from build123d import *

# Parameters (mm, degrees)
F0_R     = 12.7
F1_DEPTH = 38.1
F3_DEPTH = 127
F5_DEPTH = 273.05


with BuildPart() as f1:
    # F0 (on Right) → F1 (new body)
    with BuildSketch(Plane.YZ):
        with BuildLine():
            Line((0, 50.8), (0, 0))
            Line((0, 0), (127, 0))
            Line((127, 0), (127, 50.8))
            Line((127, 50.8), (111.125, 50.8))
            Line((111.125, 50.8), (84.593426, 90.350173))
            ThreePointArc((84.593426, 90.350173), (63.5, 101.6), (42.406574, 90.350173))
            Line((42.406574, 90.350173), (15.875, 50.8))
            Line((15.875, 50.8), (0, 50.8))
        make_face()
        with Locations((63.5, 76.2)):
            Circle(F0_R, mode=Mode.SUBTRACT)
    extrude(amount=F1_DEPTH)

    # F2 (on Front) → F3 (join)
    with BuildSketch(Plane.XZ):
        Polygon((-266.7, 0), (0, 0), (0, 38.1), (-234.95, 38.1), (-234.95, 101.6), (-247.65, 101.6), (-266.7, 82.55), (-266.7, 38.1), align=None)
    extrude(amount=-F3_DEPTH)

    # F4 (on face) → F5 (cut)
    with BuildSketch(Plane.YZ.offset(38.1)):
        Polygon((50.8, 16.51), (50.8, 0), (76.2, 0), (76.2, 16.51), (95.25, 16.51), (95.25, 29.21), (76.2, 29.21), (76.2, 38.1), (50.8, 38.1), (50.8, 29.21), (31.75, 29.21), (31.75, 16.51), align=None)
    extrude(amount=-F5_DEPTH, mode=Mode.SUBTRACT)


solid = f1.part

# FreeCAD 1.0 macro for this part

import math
import FreeCAD as App
import Part
import Sketcher
Q = App.Units.Quantity


def add_polygon(sketch, points):
    """Adds a closed chain of lines whose ends are joined by coincident constraints."""
    first, n = sketch.GeometryCount, len(points)
    for a, b in zip(points, points[1:] + points[:1]):
        sketch.addGeometry(Part.LineSegment(App.Vector(*a, 0), App.Vector(*b, 0)), False)
    for i in range(n):
        sketch.addConstraint(Sketcher.Constraint("Coincident", first + i, 2, first + (i + 1) % n, 1))

doc = App.newDocument("Part")
body = doc.addObject("PartDesign::Body", "Body")

sketch1 = body.newObject("Sketcher::SketchObject", "Sketch")
sketch1.AttachmentSupport = (doc.getObject("YZ_Plane"), [""])
sketch1.MapMode = "FlatFace"
sketch1.addGeometry([
    Part.LineSegment(App.Vector(0, 51, 0), App.Vector(0, 0, 0)),
    Part.LineSegment(App.Vector(0, 0, 0), App.Vector(127, 0, 0)),
    Part.LineSegment(App.Vector(127, 0, 0), App.Vector(127, 51, 0)),
    Part.LineSegment(App.Vector(127, 51, 0), App.Vector(111, 51, 0)),
    Part.LineSegment(App.Vector(111, 51, 0), App.Vector(85, 90, 0)),
    Part.ArcOfCircle(Part.Circle(App.Vector(64, 76, 0), App.Vector(0, 0, 1), 25), math.radians(34), math.radians(146)),
    Part.LineSegment(App.Vector(42, 90, 0), App.Vector(16, 51, 0)),
    Part.LineSegment(App.Vector(16, 51, 0), App.Vector(0, 51, 0)),
    Part.Circle(App.Vector(64, 76, 0), App.Vector(0, 0, 1), 13),
], False)
sketch1.addConstraint([
    Sketcher.Constraint("Coincident", 0, 2, 1, 1),
    Sketcher.Constraint("Coincident", 1, 2, 2, 1),
    Sketcher.Constraint("Coincident", 2, 2, 3, 1),
    Sketcher.Constraint("Coincident", 3, 2, 4, 1),
    Sketcher.Constraint("Tangent", 4, 2, 5, 1),
    Sketcher.Constraint("Tangent", 5, 2, 6, 1),
    Sketcher.Constraint("Coincident", 6, 2, 7, 1),
    Sketcher.Constraint("Coincident", 7, 2, 0, 1),
    Sketcher.Constraint("Vertical", 0),
    Sketcher.Constraint("Horizontal", 1),
    Sketcher.Constraint("Vertical", 2),
    Sketcher.Constraint("Horizontal", 3),
    Sketcher.Constraint("Horizontal", 7),
    Sketcher.Constraint("Coincident", 0, 2, -1, 1),
    Sketcher.Constraint("Coincident", 8, 3, 5, 3),
    Sketcher.Constraint("Horizontal", 4, 2, 5, 2),
    Sketcher.Constraint("Horizontal", 3, 2, 6, 2),
    Sketcher.Constraint("Equal", 3, 7),
    Sketcher.Constraint("Diameter", 8, Q("1 in")),
    Sketcher.Constraint("Radius", 5, Q("1 in")),
    Sketcher.Constraint("DistanceX", 1, 1, 1, 2, Q("5 in")),
    Sketcher.Constraint("DistanceY", 0, 2, 0, 1, Q("2 in")),
    Sketcher.Constraint("DistanceY", -1, 1, 5, 3, Q("3 in")),
    Sketcher.Constraint("DistanceX", 3, 2, 3, 1, Q("0.625 in")),
])
pad1 = body.newObject("PartDesign::Pad", "Pad")
pad1.Profile = sketch1
pad1.Length = Q("1.5 in")

sketch2 = body.newObject("Sketcher::SketchObject", "Sketch001")
sketch2.AttachmentSupport = (doc.getObject("XZ_Plane"), [""])
sketch2.MapMode = "FlatFace"
add_polygon(sketch2, [(-267, 0), (0, 0), (0, 38), (-235, 38), (-235, 102), (-248, 102), (-267, 83)])
sketch2.addConstraint([
    Sketcher.Constraint("Horizontal", 0),
    Sketcher.Constraint("Vertical", 1),
    Sketcher.Constraint("Horizontal", 2),
    Sketcher.Constraint("Vertical", 3),
    Sketcher.Constraint("Horizontal", 4),
    Sketcher.Constraint("Vertical", 6),
    Sketcher.Constraint("Coincident", 0, 2, -1, 1),
    Sketcher.Constraint("DistanceX", 0, 1, 0, 2, Q("10.5 in")),
    Sketcher.Constraint("DistanceX", 4, 2, 4, 1, Q("0.5 in")),
    Sketcher.Constraint("DistanceY", 1, 1, 1, 2, Q("1.5 in")),
    Sketcher.Constraint("DistanceY", 3, 1, 3, 2, Q("2.5 in")),
    Sketcher.Constraint("Angle", 5, Q("-135 deg")),
    Sketcher.Constraint("DistanceX", 2, 2, 2, 1, Q("9.25 in")),
])
pad2 = body.newObject("PartDesign::Pad", "Pad001")
pad2.Profile = sketch2
pad2.Length = Q("5 in")
pad2.Reversed = True

sketch3 = body.newObject("Sketcher::SketchObject", "Sketch002")
sketch3.AttachmentSupport = (doc.getObject("YZ_Plane"), [""])
sketch3.MapMode = "FlatFace"
sketch3.AttachmentOffset = App.Placement(App.Vector(0, 0, 1.5 * 25.4), App.Rotation())
add_polygon(sketch3, [(51, 17), (51, 0), (76, 0), (76, 17), (95, 17), (95, 29), (76, 29), (76, 38), (51, 38), (51, 29), (32, 29), (32, 17)])
sketch3.addConstraint([
    Sketcher.Constraint("Vertical", 0),
    Sketcher.Constraint("Horizontal", 1),
    Sketcher.Constraint("Vertical", 2),
    Sketcher.Constraint("Horizontal", 3),
    Sketcher.Constraint("Vertical", 4),
    Sketcher.Constraint("Horizontal", 5),
    Sketcher.Constraint("Vertical", 6),
    Sketcher.Constraint("Horizontal", 7),
    Sketcher.Constraint("Vertical", 8),
    Sketcher.Constraint("Horizontal", 9),
    Sketcher.Constraint("Vertical", 10),
    Sketcher.Constraint("Horizontal", 11),
    Sketcher.Constraint("PointOnObject", 0, 2, -1),
    Sketcher.Constraint("Horizontal", 5, 2, 8, 2),
    Sketcher.Constraint("Horizontal", 3, 2, 10, 2),
    Sketcher.Constraint("Vertical", 2, 2, 5, 2),
    Sketcher.Constraint("Vertical", 0, 2, 7, 2),
    Sketcher.Constraint("Equal", 5, 9),
    Sketcher.Constraint("DistanceX", 1, 1, 1, 2, Q("1 in")),
    Sketcher.Constraint("DistanceY", 4, 1, 4, 2, Q("0.5 in")),
    Sketcher.Constraint("DistanceX", -1, 1, 0, 2, Q("2 in")),
    Sketcher.Constraint("DistanceX", 3, 1, 3, 2, Q("0.75 in")),
    Sketcher.Constraint("DistanceY", 0, 2, 0, 1, Q("0.65 in")),
    Sketcher.Constraint("DistanceY", 6, 1, 6, 2, Q("0.35 in")),
])
pocket1 = body.newObject("PartDesign::Pocket", "Pocket")
pocket1.Profile = sketch3
pocket1.Length = Q("10.75 in")

doc.recompute()
